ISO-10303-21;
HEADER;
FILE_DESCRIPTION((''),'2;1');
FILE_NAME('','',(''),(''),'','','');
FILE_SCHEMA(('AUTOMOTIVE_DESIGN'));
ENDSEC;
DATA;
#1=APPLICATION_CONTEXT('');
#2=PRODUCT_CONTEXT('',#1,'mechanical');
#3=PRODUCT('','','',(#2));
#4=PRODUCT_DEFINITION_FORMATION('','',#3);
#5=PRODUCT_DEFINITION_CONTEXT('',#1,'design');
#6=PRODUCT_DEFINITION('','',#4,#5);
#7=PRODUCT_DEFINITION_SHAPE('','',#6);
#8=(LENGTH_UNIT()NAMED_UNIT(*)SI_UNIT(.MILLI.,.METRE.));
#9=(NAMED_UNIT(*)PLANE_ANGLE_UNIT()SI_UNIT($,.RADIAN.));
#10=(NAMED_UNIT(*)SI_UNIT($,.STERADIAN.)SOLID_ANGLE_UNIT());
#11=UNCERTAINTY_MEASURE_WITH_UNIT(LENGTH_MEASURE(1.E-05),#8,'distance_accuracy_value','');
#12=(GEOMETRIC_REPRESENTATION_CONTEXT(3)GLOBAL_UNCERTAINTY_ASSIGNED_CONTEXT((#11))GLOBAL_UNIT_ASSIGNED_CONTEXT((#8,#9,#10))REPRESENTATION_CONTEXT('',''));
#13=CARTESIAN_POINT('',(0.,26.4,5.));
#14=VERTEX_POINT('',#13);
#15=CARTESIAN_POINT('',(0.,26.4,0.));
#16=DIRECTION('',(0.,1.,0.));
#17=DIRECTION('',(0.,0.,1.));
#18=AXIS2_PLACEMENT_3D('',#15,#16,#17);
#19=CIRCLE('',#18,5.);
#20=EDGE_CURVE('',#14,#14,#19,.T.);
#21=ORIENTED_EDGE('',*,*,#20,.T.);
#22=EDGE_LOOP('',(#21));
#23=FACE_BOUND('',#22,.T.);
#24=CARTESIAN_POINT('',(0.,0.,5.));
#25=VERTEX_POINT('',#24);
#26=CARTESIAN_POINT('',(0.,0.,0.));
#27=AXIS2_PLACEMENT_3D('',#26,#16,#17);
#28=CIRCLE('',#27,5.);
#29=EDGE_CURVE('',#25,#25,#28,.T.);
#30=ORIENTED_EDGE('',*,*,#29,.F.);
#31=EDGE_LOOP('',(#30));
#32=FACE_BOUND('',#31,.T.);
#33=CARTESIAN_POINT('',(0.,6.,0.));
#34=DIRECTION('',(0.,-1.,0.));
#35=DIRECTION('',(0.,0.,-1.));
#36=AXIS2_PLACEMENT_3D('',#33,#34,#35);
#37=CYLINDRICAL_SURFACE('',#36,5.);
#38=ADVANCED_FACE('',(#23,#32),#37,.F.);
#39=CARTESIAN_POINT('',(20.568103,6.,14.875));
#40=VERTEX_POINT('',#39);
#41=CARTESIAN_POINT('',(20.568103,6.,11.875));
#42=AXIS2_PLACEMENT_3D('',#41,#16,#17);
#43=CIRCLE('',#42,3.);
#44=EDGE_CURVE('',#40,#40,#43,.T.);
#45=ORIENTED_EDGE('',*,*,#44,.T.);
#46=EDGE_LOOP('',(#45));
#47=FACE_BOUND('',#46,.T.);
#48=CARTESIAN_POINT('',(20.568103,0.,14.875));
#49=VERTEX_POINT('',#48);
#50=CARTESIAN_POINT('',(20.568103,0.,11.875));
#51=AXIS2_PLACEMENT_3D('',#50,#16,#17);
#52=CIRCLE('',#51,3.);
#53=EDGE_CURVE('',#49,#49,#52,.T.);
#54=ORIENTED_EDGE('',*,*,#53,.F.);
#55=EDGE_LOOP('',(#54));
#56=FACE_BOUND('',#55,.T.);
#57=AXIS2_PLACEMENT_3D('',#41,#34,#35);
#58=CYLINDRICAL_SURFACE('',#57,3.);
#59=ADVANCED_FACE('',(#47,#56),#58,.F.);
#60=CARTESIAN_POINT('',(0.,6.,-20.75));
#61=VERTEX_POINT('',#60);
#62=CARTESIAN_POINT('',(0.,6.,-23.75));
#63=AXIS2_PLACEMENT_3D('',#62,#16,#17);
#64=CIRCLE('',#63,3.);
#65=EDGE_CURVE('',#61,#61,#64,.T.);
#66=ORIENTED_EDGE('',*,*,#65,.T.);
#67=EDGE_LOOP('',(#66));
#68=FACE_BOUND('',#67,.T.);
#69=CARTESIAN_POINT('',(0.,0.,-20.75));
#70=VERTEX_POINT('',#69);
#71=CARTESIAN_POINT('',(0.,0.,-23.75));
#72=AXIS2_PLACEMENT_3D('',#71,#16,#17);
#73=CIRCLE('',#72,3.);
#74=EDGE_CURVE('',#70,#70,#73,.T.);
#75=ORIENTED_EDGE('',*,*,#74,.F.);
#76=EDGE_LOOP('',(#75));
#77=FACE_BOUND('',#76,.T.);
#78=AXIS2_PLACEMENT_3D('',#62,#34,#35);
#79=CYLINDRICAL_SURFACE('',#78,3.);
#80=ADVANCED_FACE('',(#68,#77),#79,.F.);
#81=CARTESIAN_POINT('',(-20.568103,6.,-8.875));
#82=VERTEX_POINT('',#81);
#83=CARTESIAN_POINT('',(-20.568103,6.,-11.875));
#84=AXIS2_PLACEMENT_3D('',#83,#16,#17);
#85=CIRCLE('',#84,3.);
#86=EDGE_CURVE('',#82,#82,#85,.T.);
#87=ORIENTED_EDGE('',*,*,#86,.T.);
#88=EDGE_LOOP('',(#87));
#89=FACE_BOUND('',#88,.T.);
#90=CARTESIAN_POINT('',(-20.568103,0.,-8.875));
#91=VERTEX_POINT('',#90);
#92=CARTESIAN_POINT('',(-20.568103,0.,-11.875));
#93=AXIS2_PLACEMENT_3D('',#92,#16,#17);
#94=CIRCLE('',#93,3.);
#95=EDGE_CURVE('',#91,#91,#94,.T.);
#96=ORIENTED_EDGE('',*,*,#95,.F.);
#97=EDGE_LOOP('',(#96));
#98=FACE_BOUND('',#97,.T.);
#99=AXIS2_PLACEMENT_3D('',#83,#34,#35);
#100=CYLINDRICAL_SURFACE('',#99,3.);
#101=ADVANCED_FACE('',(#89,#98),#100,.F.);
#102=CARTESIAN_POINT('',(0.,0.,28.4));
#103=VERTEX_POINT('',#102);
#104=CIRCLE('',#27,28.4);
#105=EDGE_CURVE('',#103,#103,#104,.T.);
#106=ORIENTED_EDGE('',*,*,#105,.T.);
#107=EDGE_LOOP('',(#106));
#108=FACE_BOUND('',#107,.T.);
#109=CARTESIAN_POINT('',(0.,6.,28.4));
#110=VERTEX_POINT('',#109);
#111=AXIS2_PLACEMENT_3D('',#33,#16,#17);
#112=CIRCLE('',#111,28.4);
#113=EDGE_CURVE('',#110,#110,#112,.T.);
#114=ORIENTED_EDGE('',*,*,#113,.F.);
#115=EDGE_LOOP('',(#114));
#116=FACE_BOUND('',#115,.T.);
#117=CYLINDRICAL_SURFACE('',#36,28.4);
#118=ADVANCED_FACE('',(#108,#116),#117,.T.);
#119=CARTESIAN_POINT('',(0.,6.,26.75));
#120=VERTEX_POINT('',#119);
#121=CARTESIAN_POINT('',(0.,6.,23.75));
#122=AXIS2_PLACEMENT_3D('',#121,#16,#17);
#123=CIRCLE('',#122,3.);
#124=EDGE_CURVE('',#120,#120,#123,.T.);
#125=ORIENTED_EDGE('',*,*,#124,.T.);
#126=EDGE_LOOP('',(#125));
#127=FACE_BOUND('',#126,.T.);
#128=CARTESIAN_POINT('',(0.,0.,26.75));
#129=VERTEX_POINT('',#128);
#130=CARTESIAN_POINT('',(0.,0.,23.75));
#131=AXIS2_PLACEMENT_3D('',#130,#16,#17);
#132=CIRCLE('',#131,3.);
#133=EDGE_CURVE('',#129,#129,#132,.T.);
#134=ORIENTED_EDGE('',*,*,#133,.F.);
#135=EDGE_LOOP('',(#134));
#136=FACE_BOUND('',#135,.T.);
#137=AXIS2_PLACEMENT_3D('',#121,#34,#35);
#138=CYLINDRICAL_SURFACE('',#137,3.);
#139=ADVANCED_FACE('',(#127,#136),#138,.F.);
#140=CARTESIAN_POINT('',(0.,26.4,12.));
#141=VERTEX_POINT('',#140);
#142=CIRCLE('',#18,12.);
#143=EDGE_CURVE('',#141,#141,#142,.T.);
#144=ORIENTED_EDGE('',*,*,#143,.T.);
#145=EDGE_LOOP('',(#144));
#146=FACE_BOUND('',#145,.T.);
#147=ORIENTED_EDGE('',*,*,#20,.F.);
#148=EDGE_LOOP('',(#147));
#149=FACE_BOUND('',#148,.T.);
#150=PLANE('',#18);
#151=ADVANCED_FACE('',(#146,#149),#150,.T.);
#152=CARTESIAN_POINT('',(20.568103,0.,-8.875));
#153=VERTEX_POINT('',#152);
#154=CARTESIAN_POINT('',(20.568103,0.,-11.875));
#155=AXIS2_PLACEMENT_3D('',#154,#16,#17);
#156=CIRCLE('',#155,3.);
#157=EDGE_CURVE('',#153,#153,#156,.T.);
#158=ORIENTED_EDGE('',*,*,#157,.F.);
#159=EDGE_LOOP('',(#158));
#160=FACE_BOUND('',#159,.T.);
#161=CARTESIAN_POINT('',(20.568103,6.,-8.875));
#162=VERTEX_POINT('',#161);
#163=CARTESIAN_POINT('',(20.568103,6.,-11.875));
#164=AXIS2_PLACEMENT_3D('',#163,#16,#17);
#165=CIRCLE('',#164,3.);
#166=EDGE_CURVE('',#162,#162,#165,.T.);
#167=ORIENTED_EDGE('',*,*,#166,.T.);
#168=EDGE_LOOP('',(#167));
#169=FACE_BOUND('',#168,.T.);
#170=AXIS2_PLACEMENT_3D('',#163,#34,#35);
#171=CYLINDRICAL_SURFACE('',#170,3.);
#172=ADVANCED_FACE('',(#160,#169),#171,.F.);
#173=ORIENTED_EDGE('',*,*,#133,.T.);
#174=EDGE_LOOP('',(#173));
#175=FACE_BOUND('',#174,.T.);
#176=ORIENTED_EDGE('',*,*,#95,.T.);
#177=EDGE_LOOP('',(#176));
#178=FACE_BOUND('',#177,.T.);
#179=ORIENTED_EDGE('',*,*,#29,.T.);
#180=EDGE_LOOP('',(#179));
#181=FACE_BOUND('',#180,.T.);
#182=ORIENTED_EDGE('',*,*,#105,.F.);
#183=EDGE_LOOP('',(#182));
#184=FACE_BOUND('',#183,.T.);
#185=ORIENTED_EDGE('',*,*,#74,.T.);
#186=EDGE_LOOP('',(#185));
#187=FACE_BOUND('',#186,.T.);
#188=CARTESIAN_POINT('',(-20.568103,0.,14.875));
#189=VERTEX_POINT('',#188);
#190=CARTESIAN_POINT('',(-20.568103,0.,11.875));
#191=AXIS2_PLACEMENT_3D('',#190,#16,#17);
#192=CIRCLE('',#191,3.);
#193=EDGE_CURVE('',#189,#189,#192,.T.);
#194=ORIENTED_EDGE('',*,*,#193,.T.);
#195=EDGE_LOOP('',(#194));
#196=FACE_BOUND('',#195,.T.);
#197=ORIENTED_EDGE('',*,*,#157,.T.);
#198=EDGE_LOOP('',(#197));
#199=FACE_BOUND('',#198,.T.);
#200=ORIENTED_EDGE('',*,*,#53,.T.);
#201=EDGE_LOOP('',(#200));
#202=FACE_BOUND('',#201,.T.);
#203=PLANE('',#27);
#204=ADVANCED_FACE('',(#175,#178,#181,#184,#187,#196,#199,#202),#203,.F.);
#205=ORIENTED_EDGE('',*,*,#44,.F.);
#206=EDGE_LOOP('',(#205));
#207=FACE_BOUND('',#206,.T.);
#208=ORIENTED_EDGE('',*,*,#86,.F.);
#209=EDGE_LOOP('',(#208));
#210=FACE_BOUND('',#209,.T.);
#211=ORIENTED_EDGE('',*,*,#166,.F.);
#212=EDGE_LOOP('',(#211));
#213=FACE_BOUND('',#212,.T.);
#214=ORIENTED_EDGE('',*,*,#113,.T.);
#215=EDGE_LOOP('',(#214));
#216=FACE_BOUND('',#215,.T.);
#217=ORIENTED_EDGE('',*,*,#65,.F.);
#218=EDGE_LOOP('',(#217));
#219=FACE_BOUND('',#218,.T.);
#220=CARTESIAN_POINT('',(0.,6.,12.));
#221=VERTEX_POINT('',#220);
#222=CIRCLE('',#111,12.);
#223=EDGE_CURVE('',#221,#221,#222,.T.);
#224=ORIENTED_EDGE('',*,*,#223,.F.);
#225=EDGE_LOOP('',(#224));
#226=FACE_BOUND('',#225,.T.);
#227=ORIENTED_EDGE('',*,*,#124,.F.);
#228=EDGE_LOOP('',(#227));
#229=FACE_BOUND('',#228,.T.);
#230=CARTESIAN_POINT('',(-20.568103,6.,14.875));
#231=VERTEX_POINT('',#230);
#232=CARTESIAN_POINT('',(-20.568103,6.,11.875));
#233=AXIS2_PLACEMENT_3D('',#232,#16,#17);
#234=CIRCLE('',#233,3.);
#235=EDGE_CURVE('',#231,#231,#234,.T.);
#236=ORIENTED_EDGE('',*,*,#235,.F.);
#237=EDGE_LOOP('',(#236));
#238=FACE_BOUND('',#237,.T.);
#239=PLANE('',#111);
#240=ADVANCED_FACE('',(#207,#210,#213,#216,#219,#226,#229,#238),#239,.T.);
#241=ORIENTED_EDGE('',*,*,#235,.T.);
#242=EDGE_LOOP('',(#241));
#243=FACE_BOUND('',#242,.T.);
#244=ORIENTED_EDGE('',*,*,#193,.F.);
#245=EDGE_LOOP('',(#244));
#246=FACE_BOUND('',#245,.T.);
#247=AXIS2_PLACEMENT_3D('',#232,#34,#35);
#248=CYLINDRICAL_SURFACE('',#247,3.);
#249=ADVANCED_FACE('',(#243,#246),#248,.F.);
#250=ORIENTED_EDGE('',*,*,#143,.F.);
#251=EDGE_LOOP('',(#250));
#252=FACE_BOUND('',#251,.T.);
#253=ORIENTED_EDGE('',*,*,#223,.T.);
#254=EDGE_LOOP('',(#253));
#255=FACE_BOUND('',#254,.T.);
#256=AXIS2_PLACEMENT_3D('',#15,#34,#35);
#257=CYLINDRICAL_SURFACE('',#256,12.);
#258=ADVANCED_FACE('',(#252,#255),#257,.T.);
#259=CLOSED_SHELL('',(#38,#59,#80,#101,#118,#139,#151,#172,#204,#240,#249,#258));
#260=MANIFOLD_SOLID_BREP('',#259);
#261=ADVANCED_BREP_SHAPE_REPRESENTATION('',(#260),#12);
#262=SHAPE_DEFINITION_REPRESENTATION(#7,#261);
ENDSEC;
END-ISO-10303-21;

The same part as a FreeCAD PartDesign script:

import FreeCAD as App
import Part
import Sketcher
Q = App.Units.Quantity

doc = App.newDocument("Part")
body = doc.addObject("PartDesign::Body", "Body")

# Sketch on XZ plane
sketch1 = body.newObject("Sketcher::SketchObject", "Sketch")
sketch1.AttachmentSupport = (doc.getObject("XZ_Plane"), [""])
sketch1.MapMode = "FlatFace"
sketch1.addGeometry([
    Part.Circle(App.Vector(0, 0, 0), App.Vector(0, 0, 1), 28.4),  # 0
    Part.Circle(App.Vector(-20.6, 11.9, 0), App.Vector(0, 0, 1), 3),  # 1
    Part.Circle(App.Vector(0, 23.8, 0), App.Vector(0, 0, 1), 3),  # 2
    Part.Circle(App.Vector(0, 0, 0), App.Vector(0, 0, 1), 5),  # 3
    Part.Circle(App.Vector(20.6, 11.9, 0), App.Vector(0, 0, 1), 3),  # 4
    Part.Circle(App.Vector(-20.6, -11.9, 0), App.Vector(0, 0, 1), 3),  # 5
    Part.Circle(App.Vector(20.6, -11.9, 0), App.Vector(0, 0, 1), 3),  # 6
    Part.Circle(App.Vector(0, -23.8, 0), App.Vector(0, 0, 1), 3),  # 7
], False)
sketch1.addConstraint([
    Sketcher.Constraint("Coincident", 0, 3, -1, 1),
    Sketcher.Constraint("Coincident", 3, 3, -1, 1),
    Sketcher.Constraint("Equal", 1, 2),
    Sketcher.Constraint("Equal", 2, 4),
    Sketcher.Constraint("Equal", 4, 5),
    Sketcher.Constraint("Equal", 5, 6),
    Sketcher.Constraint("Equal", 6, 7),
    Sketcher.Constraint("Symmetric", 4, 3, 5, 3, -1, 1),
    Sketcher.Constraint("Symmetric", 1, 3, 6, 3, -1, 1),
    Sketcher.Constraint("Symmetric", 2, 3, 7, 3, -1, 1),
    Sketcher.Constraint("Symmetric", 1, 3, 4, 3, -2),
    Sketcher.Constraint("PointOnObject", 2, 3, -2),
    Sketcher.Constraint("Diameter", 1, Q("6 mm")),
    Sketcher.Constraint("Diameter", 3, Q("10 mm")),
    Sketcher.Constraint("Diameter", 0, Q("56.8 mm")),
    Sketcher.Constraint("DistanceY", -1, 1, 2, 3, Q("23.75 mm")),
    Sketcher.Constraint("DistanceY", 5, 3, 1, 3, Q("23.75 mm")),
    Sketcher.Constraint("DistanceX", 1, 3, -1, 1, Q("20.568103 mm")),
])
pad1 = body.newObject("PartDesign::Pad", "Pad")
pad1.Profile = sketch1
pad1.Length = 6
pad1.Reversed = True

# Sketch on XZ plane
sketch2 = body.newObject("Sketcher::SketchObject", "Sketch001")
sketch2.AttachmentSupport = (doc.getObject("XZ_Plane"), [""])
sketch2.MapMode = "FlatFace"
sketch2.AttachmentOffset = App.Placement(App.Vector(0, 0, -6), App.Rotation())
sketch2.addGeometry([
    Part.Circle(App.Vector(0, 0, 0), App.Vector(0, 0, 1), 12),
    Part.Circle(App.Vector(0, 0, 0), App.Vector(0, 0, 1), 5),
], False)
sketch2.addConstraint([
    Sketcher.Constraint("Coincident", 0, 3, -1, 1),
    Sketcher.Constraint("Coincident", 1, 3, -1, 1),
    Sketcher.Constraint("Diameter", 0, Q("24 mm")),
    Sketcher.Constraint("Diameter", 1, Q("10 mm")),
])
pad2 = body.newObject("PartDesign::Pad", "Pad001")
pad2.Profile = sketch2
pad2.Length = 20.4
pad2.Reversed = True

doc.recompute()
